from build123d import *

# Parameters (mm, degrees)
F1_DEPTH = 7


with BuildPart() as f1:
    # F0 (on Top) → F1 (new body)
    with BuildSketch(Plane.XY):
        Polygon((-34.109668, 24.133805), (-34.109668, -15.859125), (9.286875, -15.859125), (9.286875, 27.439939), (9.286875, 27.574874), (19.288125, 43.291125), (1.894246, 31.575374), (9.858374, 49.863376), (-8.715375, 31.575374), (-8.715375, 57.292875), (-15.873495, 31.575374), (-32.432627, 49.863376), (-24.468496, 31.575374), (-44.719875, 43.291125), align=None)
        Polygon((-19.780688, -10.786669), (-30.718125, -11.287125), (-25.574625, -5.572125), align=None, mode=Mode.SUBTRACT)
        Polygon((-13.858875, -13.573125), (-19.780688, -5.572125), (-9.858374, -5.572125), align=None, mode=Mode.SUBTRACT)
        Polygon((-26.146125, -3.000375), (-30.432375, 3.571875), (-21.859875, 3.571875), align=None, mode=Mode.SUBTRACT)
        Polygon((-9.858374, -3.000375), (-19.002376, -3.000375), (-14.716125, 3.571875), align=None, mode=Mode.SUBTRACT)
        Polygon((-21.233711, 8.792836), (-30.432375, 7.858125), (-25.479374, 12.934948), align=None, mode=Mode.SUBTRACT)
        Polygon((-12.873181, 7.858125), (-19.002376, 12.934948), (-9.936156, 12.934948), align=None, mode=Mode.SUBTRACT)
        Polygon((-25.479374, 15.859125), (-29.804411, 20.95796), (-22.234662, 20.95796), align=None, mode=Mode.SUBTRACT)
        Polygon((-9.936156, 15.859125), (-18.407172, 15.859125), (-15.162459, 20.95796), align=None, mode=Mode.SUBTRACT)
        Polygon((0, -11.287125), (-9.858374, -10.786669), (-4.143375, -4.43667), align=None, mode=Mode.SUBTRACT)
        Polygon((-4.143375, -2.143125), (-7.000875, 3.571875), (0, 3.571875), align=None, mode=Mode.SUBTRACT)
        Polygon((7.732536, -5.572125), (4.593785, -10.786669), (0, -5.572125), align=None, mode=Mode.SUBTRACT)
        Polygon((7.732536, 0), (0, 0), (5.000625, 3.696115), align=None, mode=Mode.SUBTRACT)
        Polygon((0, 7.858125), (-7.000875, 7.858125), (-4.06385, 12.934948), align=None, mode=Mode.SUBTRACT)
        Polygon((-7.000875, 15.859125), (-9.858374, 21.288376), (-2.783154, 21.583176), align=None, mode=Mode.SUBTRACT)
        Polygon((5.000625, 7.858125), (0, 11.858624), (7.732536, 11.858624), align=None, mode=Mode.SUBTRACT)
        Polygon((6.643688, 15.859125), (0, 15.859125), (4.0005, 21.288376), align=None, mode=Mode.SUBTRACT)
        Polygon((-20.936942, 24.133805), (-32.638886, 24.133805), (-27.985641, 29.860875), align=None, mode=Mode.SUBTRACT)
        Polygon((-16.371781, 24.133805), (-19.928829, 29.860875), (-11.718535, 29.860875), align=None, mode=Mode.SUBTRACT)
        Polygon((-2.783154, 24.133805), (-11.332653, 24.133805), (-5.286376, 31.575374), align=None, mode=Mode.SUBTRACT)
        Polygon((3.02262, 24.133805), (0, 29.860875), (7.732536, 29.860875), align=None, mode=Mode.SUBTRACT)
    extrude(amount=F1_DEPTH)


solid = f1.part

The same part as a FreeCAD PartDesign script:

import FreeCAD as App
import Part
import Sketcher
from FreeCAD import Vector
Q = App.Units.Quantity

doc = App.newDocument("Part")
body = doc.addObject("PartDesign::Body", "Body")

# Sketch on XY plane
sketch1 = body.newObject("Sketcher::SketchObject", "Sketch")
sketch1.AttachmentSupport = (doc.getObject("XY_Plane"), [""])
sketch1.MapMode = "FlatFace"
sketch1.addGeometry([
    Part.LineSegment(Vector(-34.109668, 24.133805, 0), Vector(-34.109668, -15.859125, 0)),  # 0
    Part.LineSegment(Vector(-34.109668, -15.859125, 0), Vector(9.286875, -15.859125, 0)),  # 1
    Part.LineSegment(Vector(9.286875, -15.859125, 0), Vector(9.286875, 27.574874, 0)),  # 2
    Part.LineSegment(Vector(9.286875, 27.574874, 0), Vector(19.288125, 43.291125, 0)),  # 3
    Part.LineSegment(Vector(19.288125, 43.291125, 0), Vector(1.894246, 31.575374, 0)),  # 4
    Part.LineSegment(Vector(1.894246, 31.575374, 0), Vector(9.858374, 49.863376, 0)),  # 5
    Part.LineSegment(Vector(9.858374, 49.863376, 0), Vector(-8.715375, 31.575374, 0)),  # 6
    Part.LineSegment(Vector(-8.715375, 31.575374, 0), Vector(-8.715375, 57.292875, 0)),  # 7
    Part.LineSegment(Vector(-8.715375, 57.292875, 0), Vector(-15.873495, 31.575374, 0)),  # 8
    Part.LineSegment(Vector(-15.873495, 31.575374, 0), Vector(-32.432627, 49.863376, 0)),  # 9
    Part.LineSegment(Vector(-32.432627, 49.863376, 0), Vector(-24.468496, 31.575374, 0)),  # 10
    Part.LineSegment(Vector(-24.468496, 31.575374, 0), Vector(-44.719875, 43.291125, 0)),  # 11
    Part.LineSegment(Vector(-44.719875, 43.291125, 0), Vector(-34.109668, 24.133805, 0)),  # 12
    Part.LineSegment(Vector(-25.574625, -5.572125, 0), Vector(-19.780688, -10.786669, 0)),  # 13
    Part.LineSegment(Vector(-19.780688, -10.786669, 0), Vector(-30.718125, -11.287125, 0)),  # 14
    Part.LineSegment(Vector(-30.718125, -11.287125, 0), Vector(-25.574625, -5.572125, 0)),  # 15
    Part.LineSegment(Vector(-9.858374, -5.572125, 0), Vector(-13.858875, -13.573125, 0)),  # 16
    Part.LineSegment(Vector(-13.858875, -13.573125, 0), Vector(-19.780688, -5.572125, 0)),  # 17
    Part.LineSegment(Vector(-19.780688, -5.572125, 0), Vector(-9.858374, -5.572125, 0)),  # 18
    Part.LineSegment(Vector(-21.859875, 3.571875, 0), Vector(-26.146125, -3.000375, 0)),  # 19
    Part.LineSegment(Vector(-26.146125, -3.000375, 0), Vector(-30.432375, 3.571875, 0)),  # 20
    Part.LineSegment(Vector(-30.432375, 3.571875, 0), Vector(-21.859875, 3.571875, 0)),  # 21
    Part.LineSegment(Vector(-14.716125, 3.571875, 0), Vector(-9.858374, -3.000375, 0)),  # 22
    Part.LineSegment(Vector(-9.858374, -3.000375, 0), Vector(-19.002376, -3.000375, 0)),  # 23
    Part.LineSegment(Vector(-19.002376, -3.000375, 0), Vector(-14.716125, 3.571875, 0)),  # 24
    Part.LineSegment(Vector(-4.143375, -4.43667, 0), Vector(0, -11.287125, 0)),  # 25
    Part.LineSegment(Vector(0, -11.287125, 0), Vector(-9.858374, -10.786669, 0)),  # 26
    Part.LineSegment(Vector(-9.858374, -10.786669, 0), Vector(-4.143375, -4.43667, 0)),  # 27
    Part.LineSegment(Vector(0, -5.572125, 0), Vector(7.732536, -5.572125, 0)),  # 28
    Part.LineSegment(Vector(7.732536, -5.572125, 0), Vector(4.593785, -10.786669, 0)),  # 29
    Part.LineSegment(Vector(4.593785, -10.786669, 0), Vector(0, -5.572125, 0)),  # 30
    Part.LineSegment(Vector(0, 3.571875, 0), Vector(-4.143375, -2.143125, 0)),  # 31
    Part.LineSegment(Vector(-4.143375, -2.143125, 0), Vector(-7.000875, 3.571875, 0)),  # 32
    Part.LineSegment(Vector(-7.000875, 3.571875, 0), Vector(0, 3.571875, 0)),  # 33
    Part.LineSegment(Vector(5.000625, 3.696115, 0), Vector(7.732536, 0, 0)),  # 34
    Part.LineSegment(Vector(7.732536, 0, 0), Vector(0, 0, 0)),  # 35
    Part.LineSegment(Vector(0, 0, 0), Vector(5.000625, 3.696115, 0)),  # 36
    Part.LineSegment(Vector(-25.479374, 12.934948, 0), Vector(-21.233711, 8.792836, 0)),  # 37
    Part.LineSegment(Vector(-21.233711, 8.792836, 0), Vector(-30.432375, 7.858125, 0)),  # 38
    Part.LineSegment(Vector(-30.432375, 7.858125, 0), Vector(-25.479374, 12.934948, 0)),  # 39
    Part.LineSegment(Vector(-22.234662, 20.95796, 0), Vector(-25.479374, 15.859125, 0)),  # 40
    Part.LineSegment(Vector(-25.479374, 15.859125, 0), Vector(-29.804411, 20.95796, 0)),  # 41
    Part.LineSegment(Vector(-29.804411, 20.95796, 0), Vector(-22.234662, 20.95796, 0)),  # 42
    Part.LineSegment(Vector(-9.936156, 12.934948, 0), Vector(-12.873181, 7.858125, 0)),  # 43
    Part.LineSegment(Vector(-12.873181, 7.858125, 0), Vector(-19.002376, 12.934948, 0)),  # 44
    Part.LineSegment(Vector(-19.002376, 12.934948, 0), Vector(-9.936156, 12.934948, 0)),  # 45
    Part.LineSegment(Vector(-15.162459, 20.95796, 0), Vector(-9.936156, 15.859125, 0)),  # 46
    Part.LineSegment(Vector(-9.936156, 15.859125, 0), Vector(-18.407172, 15.859125, 0)),  # 47
    Part.LineSegment(Vector(-18.407172, 15.859125, 0), Vector(-15.162459, 20.95796, 0)),  # 48
    Part.LineSegment(Vector(-27.985641, 29.860875, 0), Vector(-20.936942, 24.133805, 0)),  # 49
    Part.LineSegment(Vector(-20.936942, 24.133805, 0), Vector(-32.638886, 24.133805, 0)),  # 50
    Part.LineSegment(Vector(-32.638886, 24.133805, 0), Vector(-27.985641, 29.860875, 0)),  # 51
    Part.LineSegment(Vector(-11.718535, 29.860875, 0), Vector(-16.371781, 24.133805, 0)),  # 52
    Part.LineSegment(Vector(-16.371781, 24.133805, 0), Vector(-19.928829, 29.860875, 0)),  # 53
    Part.LineSegment(Vector(-19.928829, 29.860875, 0), Vector(-11.718535, 29.860875, 0)),  # 54
    Part.LineSegment(Vector(-4.06385, 12.934948, 0), Vector(0, 7.858125, 0)),  # 55
    Part.LineSegment(Vector(0, 7.858125, 0), Vector(-7.000875, 7.858125, 0)),  # 56
    Part.LineSegment(Vector(-7.000875, 7.858125, 0), Vector(-4.06385, 12.934948, 0)),  # 57
    Part.LineSegment(Vector(-2.783154, 21.583176, 0), Vector(-7.000875, 15.859125, 0)),  # 58
    Part.LineSegment(Vector(-7.000875, 15.859125, 0), Vector(-9.858374, 21.288376, 0)),  # 59
    Part.LineSegment(Vector(-9.858374, 21.288376, 0), Vector(-2.783154, 21.583176, 0)),  # 60
    Part.LineSegment(Vector(7.732536, 11.858624, 0), Vector(5.000625, 7.858125, 0)),  # 61
    Part.LineSegment(Vector(5.000625, 7.858125, 0), Vector(0, 11.858624, 0)),  # 62
    Part.LineSegment(Vector(0, 11.858624, 0), Vector(7.732536, 11.858624, 0)),  # 63
    Part.LineSegment(Vector(4.0005, 21.288376, 0), Vector(6.643688, 15.859125, 0)),  # 64
    Part.LineSegment(Vector(6.643688, 15.859125, 0), Vector(0, 15.859125, 0)),  # 65
    Part.LineSegment(Vector(0, 15.859125, 0), Vector(4.0005, 21.288376, 0)),  # 66
    Part.LineSegment(Vector(-5.286376, 31.575374, 0), Vector(-2.783154, 24.133805, 0)),  # 67
    Part.LineSegment(Vector(-2.783154, 24.133805, 0), Vector(-11.332653, 24.133805, 0)),  # 68
    Part.LineSegment(Vector(-11.332653, 24.133805, 0), Vector(-5.286376, 31.575374, 0)),  # 69
    Part.LineSegment(Vector(7.732536, 29.860875, 0), Vector(3.02262, 24.133805, 0)),  # 70
    Part.LineSegment(Vector(3.02262, 24.133805, 0), Vector(0, 29.860875, 0)),  # 71
    Part.LineSegment(Vector(0, 29.860875, 0), Vector(7.732536, 29.860875, 0)),  # 72
], False)
sketch1.addConstraint([
    Sketcher.Constraint("Coincident", 0, 2, 1, 1),
    Sketcher.Constraint("Coincident", 1, 2, 2, 1),
    Sketcher.Constraint("Coincident", 2, 2, 3, 1),
    Sketcher.Constraint("Coincident", 3, 2, 4, 1),
    Sketcher.Constraint("Coincident", 4, 2, 5, 1),
    Sketcher.Constraint("Coincident", 5, 2, 6, 1),
    Sketcher.Constraint("Coincident", 6, 2, 7, 1),
    Sketcher.Constraint("Coincident", 7, 2, 8, 1),
    Sketcher.Constraint("Coincident", 8, 2, 9, 1),
    Sketcher.Constraint("Coincident", 9, 2, 10, 1),
    Sketcher.Constraint("Coincident", 10, 2, 11, 1),
    Sketcher.Constraint("Coincident", 11, 2, 12, 1),
    Sketcher.Constraint("Coincident", 12, 2, 0, 1),
    Sketcher.Constraint("Coincident", 13, 2, 14, 1),
    Sketcher.Constraint("Coincident", 14, 2, 15, 1),
    Sketcher.Constraint("Coincident", 15, 2, 13, 1),
    Sketcher.Constraint("Coincident", 16, 2, 17, 1),
    Sketcher.Constraint("Coincident", 17, 2, 18, 1),
    Sketcher.Constraint("Coincident", 18, 2, 16, 1),
    Sketcher.Constraint("Coincident", 19, 2, 20, 1),
    Sketcher.Constraint("Coincident", 20, 2, 21, 1),
    Sketcher.Constraint("Coincident", 21, 2, 19, 1),
    Sketcher.Constraint("Coincident", 22, 2, 23, 1),
    Sketcher.Constraint("Coincident", 23, 2, 24, 1),
    Sketcher.Constraint("Coincident", 24, 2, 22, 1),
    Sketcher.Constraint("Coincident", 25, 2, 26, 1),
    Sketcher.Constraint("Coincident", 26, 2, 27, 1),
    Sketcher.Constraint("Coincident", 27, 2, 25, 1),
    Sketcher.Constraint("Coincident", 28, 2, 29, 1),
    Sketcher.Constraint("Coincident", 29, 2, 30, 1),
    Sketcher.Constraint("Coincident", 30, 2, 28, 1),
    Sketcher.Constraint("Coincident", 31, 2, 32, 1),
    Sketcher.Constraint("Coincident", 32, 2, 33, 1),
    Sketcher.Constraint("Coincident", 33, 2, 31, 1),
    Sketcher.Constraint("Coincident", 34, 2, 35, 1),
    Sketcher.Constraint("Coincident", 35, 2, 36, 1),
    Sketcher.Constraint("Coincident", 36, 2, 34, 1),
    Sketcher.Constraint("Coincident", 37, 2, 38, 1),
    Sketcher.Constraint("Coincident", 38, 2, 39, 1),
    Sketcher.Constraint("Coincident", 39, 2, 37, 1),
    Sketcher.Constraint("Coincident", 40, 2, 41, 1),
    Sketcher.Constraint("Coincident", 41, 2, 42, 1),
    Sketcher.Constraint("Coincident", 42, 2, 40, 1),
    Sketcher.Constraint("Coincident", 43, 2, 44, 1),
    Sketcher.Constraint("Coincident", 44, 2, 45, 1),
    Sketcher.Constraint("Coincident", 45, 2, 43, 1),
    Sketcher.Constraint("Coincident", 46, 2, 47, 1),
    Sketcher.Constraint("Coincident", 47, 2, 48, 1),
    Sketcher.Constraint("Coincident", 48, 2, 46, 1),
    Sketcher.Constraint("Coincident", 49, 2, 50, 1),
    Sketcher.Constraint("Coincident", 50, 2, 51, 1),
    Sketcher.Constraint("Coincident", 51, 2, 49, 1),
    Sketcher.Constraint("Coincident", 52, 2, 53, 1),
    Sketcher.Constraint("Coincident", 53, 2, 54, 1),
    Sketcher.Constraint("Coincident", 54, 2, 52, 1),
    Sketcher.Constraint("Coincident", 55, 2, 56, 1),
    Sketcher.Constraint("Coincident", 56, 2, 57, 1),
    Sketcher.Constraint("Coincident", 57, 2, 55, 1),
    Sketcher.Constraint("Coincident", 58, 2, 59, 1),
    Sketcher.Constraint("Coincident", 59, 2, 60, 1),
    Sketcher.Constraint("Coincident", 60, 2, 58, 1),
    Sketcher.Constraint("Coincident", 61, 2, 62, 1),
    Sketcher.Constraint("Coincident", 62, 2, 63, 1),
    Sketcher.Constraint("Coincident", 63, 2, 61, 1),
    Sketcher.Constraint("Coincident", 64, 2, 65, 1),
    Sketcher.Constraint("Coincident", 65, 2, 66, 1),
    Sketcher.Constraint("Coincident", 66, 2, 64, 1),
    Sketcher.Constraint("Coincident", 67, 2, 68, 1),
    Sketcher.Constraint("Coincident", 68, 2, 69, 1),
    Sketcher.Constraint("Coincident", 69, 2, 67, 1),
    Sketcher.Constraint("Coincident", 70, 2, 71, 1),
    Sketcher.Constraint("Coincident", 71, 2, 72, 1),
    Sketcher.Constraint("Coincident", 72, 2, 70, 1),
    Sketcher.Constraint("Vertical", 0),
    Sketcher.Constraint("Horizontal", 1),
    Sketcher.Constraint("Vertical", 2),
    Sketcher.Constraint("Vertical", 7),
    Sketcher.Constraint("Horizontal", 18),
    Sketcher.Constraint("Horizontal", 21),
    Sketcher.Constraint("Horizontal", 23),
    Sketcher.Constraint("Horizontal", 28),
    Sketcher.Constraint("Horizontal", 33),
    Sketcher.Constraint("Horizontal", 35),
    Sketcher.Constraint("Horizontal", 42),
    Sketcher.Constraint("Horizontal", 45),
    Sketcher.Constraint("Horizontal", 47),
    Sketcher.Constraint("Horizontal", 50),
    Sketcher.Constraint("Horizontal", 54),
    Sketcher.Constraint("Horizontal", 56),
    Sketcher.Constraint("Horizontal", 63),
    Sketcher.Constraint("Horizontal", 65),
    Sketcher.Constraint("Horizontal", 68),
    Sketcher.Constraint("Horizontal", 72),
    Sketcher.Constraint("Coincident", 35, 2, -1, 1),
    Sketcher.Constraint("PointOnObject", 25, 2, -2),
    Sketcher.Constraint("PointOnObject", 30, 2, -2),
    Sketcher.Constraint("PointOnObject", 33, 2, -2),
    Sketcher.Constraint("PointOnObject", 55, 2, -2),
    Sketcher.Constraint("PointOnObject", 62, 2, -2),
    Sketcher.Constraint("PointOnObject", 65, 2, -2),
    Sketcher.Constraint("PointOnObject", 71, 2, -2),
    Sketcher.Constraint("DistanceX", 23, 2, 23, 1, Q("0.3600001 in")),
    Sketcher.Constraint("DistanceY", 2, 1, 2, 2, Q("1.71 in")),
    Sketcher.Constraint("DistanceX", 21, 1, 21, 2, Q("0.3375 in")),
    Sketcher.Constraint("DistanceY", 7, 1, 7, 2, Q("1.0125 in")),
    Sketcher.Constraint("DistanceY", -1, 1, 20, 2, Q("0.140625 in")),
    Sketcher.Constraint("DistanceY", -1, 1, 24, 2, Q("0.140625 in")),
    Sketcher.Constraint("DistanceY", -1, 1, 32, 2, Q("0.140625 in")),
    Sketcher.Constraint("DistanceX", 68, 2, 68, 1, 8.549499),
    Sketcher.Constraint("DistanceX", -1, 1, 66, 2, Q("0.1575 in")),
    Sketcher.Constraint("Distance", 12, 21.899301),
    Sketcher.Constraint("Distance", 55, 6.503),
    Sketcher.Constraint("DistanceX", 42, 1, 42, 2, 7.569749),
    Sketcher.Constraint("DistanceX", 45, 1, 45, 2, 9.06622),
    Sketcher.Constraint("DistanceY", 0, 2, 0, 1, 39.99293),
    Sketcher.Constraint("Distance", 3, 18.628622),
    Sketcher.Constraint("Distance", 4, 20.971549),
    Sketcher.Constraint("Distance", 5, 19.946888),
    Sketcher.Constraint("Distance", 9, 24.670952),
    Sketcher.Constraint("Distance", 10, 19.946889),
    Sketcher.Constraint("Distance", 14, 10.948881),
    Sketcher.Constraint("Distance", 16, 8.94539),
    Sketcher.Constraint("Distance", 17, 9.954088),
    Sketcher.Constraint("Distance", 22, 8.17265),
    Sketcher.Constraint("Distance", 26, 9.871069),
    Sketcher.Constraint("Distance", 27, 8.54305),
    Sketcher.Constraint("Distance", 31, 7.05895),
    Sketcher.Constraint("Distance", 34, 4.596151),
    Sketcher.Constraint("Distance", 36, 6.218321),
    Sketcher.Constraint("Distance", 38, 9.246032),
    Sketcher.Constraint("Distance", 41, 6.68611),
    Sketcher.Constraint("Distance", 46, 7.301531),
    Sketcher.Constraint("Distance", 51, 7.379161),
    Sketcher.Constraint("Distance", 52, 7.379162),
    Sketcher.Constraint("Distance", 58, 7.110129),
    Sketcher.Constraint("Distance", 60, 7.081359),
    Sketcher.Constraint("Distance", 61, 4.844309),
    Sketcher.Constraint("Distance", 67, 7.85131),
    Sketcher.Constraint("DistanceX", 1, 1, 1, 2, 43.396543),
    Sketcher.Constraint("DistanceX", 18, 1, 18, 2, 9.922314),
    Sketcher.Constraint("DistanceX", 28, 1, 28, 2, 7.732536),
    Sketcher.Constraint("DistanceX", 33, 1, 33, 2, 7.000875),
    Sketcher.Constraint("DistanceX", 35, 2, 35, 1, 7.732536),
    Sketcher.Constraint("DistanceX", 47, 2, 47, 1, 8.471016),
    Sketcher.Constraint("DistanceX", 50, 2, 50, 1, 11.701944),
    Sketcher.Constraint("DistanceX", 54, 1, 54, 2, 8.210294),
    Sketcher.Constraint("DistanceX", 56, 2, 56, 1, 7.000875),
    Sketcher.Constraint("DistanceX", 63, 1, 63, 2, 7.732536),
    Sketcher.Constraint("DistanceX", 65, 2, 65, 1, 6.643688),
    Sketcher.Constraint("DistanceX", 72, 1, 72, 2, 7.732536),
    Sketcher.Constraint("DistanceX", 13, 2, -1, 1, 19.780688),
    Sketcher.Constraint("DistanceY", 13, 2, -1, 1, 10.786669),
    Sketcher.Constraint("DistanceX", 17, 2, -1, 1, 19.780688),
    Sketcher.Constraint("DistanceY", 26, 2, -1, 1, 10.786669),
    Sketcher.Constraint("DistanceY", 27, 2, -1, 1, 4.43667),
    Sketcher.Constraint("DistanceY", 29, 2, -1, 1, 10.786669),
    Sketcher.Constraint("DistanceX", 37, 2, -1, 1, 21.233711),
    Sketcher.Constraint("DistanceX", 41, 2, -1, 1, 29.804411),
    Sketcher.Constraint("DistanceY", -1, 1, 41, 2, 20.95796),
    Sketcher.Constraint("DistanceX", 43, 2, -1, 1, 12.873181),
    Sketcher.Constraint("DistanceX", 47, 2, -1, 1, 18.407172),
    Sketcher.Constraint("DistanceX", 48, 2, -1, 1, 15.162459),
    Sketcher.Constraint("DistanceY", -1, 1, 48, 2, 20.95796),
    Sketcher.Constraint("DistanceX", 49, 2, -1, 1, 20.936942),
    Sketcher.Constraint("DistanceX", 51, 2, -1, 1, 27.985641),
    Sketcher.Constraint("DistanceX", 52, 2, -1, 1, 16.371781),
    Sketcher.Constraint("DistanceX", 53, 2, -1, 1, 19.928829),
    Sketcher.Constraint("DistanceX", 57, 2, -1, 1, 4.06385),
    Sketcher.Constraint("DistanceX", -1, 1, 70, 2, 3.02262),
    Sketcher.Constraint("Distance", 6, 26.065977),
    Sketcher.Constraint("Distance", 8, 26.695103),
    Sketcher.Constraint("Distance", 11, 23.396093),
    Sketcher.Constraint("Distance", 13, 7.794945),
    Sketcher.Constraint("Distance", 15, 7.688746),
    Sketcher.Constraint("Distance", 19, 7.846427),
    Sketcher.Constraint("Distance", 20, 7.846427),
    Sketcher.Constraint("Distance", 24, 7.846427),
    Sketcher.Constraint("Distance", 25, 8.006016),
    Sketcher.Constraint("Distance", 29, 6.086315),
    Sketcher.Constraint("Distance", 30, 6.949412),
    Sketcher.Constraint("Distance", 32, 6.389564),
    Sketcher.Constraint("Distance", 37, 5.931505),
    Sketcher.Constraint("Distance", 39, 7.092697),
    Sketcher.Constraint("Distance", 40, 6.043697),
    Sketcher.Constraint("Distance", 43, 5.865172),
    Sketcher.Constraint("Distance", 44, 7.958716),
    Sketcher.Constraint("Distance", 59, 6.135313),
    Sketcher.Constraint("Distance", 62, 6.403924),
    Sketcher.Constraint("Distance", 64, 6.038477),
    Sketcher.Constraint("Distance", 69, 9.588244),
    Sketcher.Constraint("Distance", 70, 7.415028),
    Sketcher.Constraint("DistanceX", 0, 2, -1, 1, 34.109668),
    Sketcher.Constraint("DistanceY", 0, 2, -1, 1, 15.859125),
    Sketcher.Constraint("DistanceX", -1, 1, 3, 2, 19.288125),
    Sketcher.Constraint("DistanceX", -1, 1, 4, 2, 1.894246),
    Sketcher.Constraint("DistanceX", -1, 1, 5, 2, 9.858374),
    Sketcher.Constraint("DistanceX", 6, 2, -1, 1, 8.715375),
    Sketcher.Constraint("DistanceX", 8, 2, -1, 1, 15.873495),
    Sketcher.Constraint("DistanceX", 9, 2, -1, 1, 32.432627),
    Sketcher.Constraint("DistanceX", 10, 2, -1, 1, 24.468496),
    Sketcher.Constraint("DistanceX", 14, 2, -1, 1, 30.718125),
    Sketcher.Constraint("DistanceY", 16, 2, -1, 1, 13.573125),
    Sketcher.Constraint("DistanceX", 19, 2, -1, 1, 26.146125),
    Sketcher.Constraint("DistanceX", 22, 2, -1, 1, 9.858374),
    Sketcher.Constraint("DistanceY", -1, 1, 37, 2, 8.792836),
    Sketcher.Constraint("DistanceX", 38, 2, -1, 1, 30.432375),
    Sketcher.Constraint("DistanceY", -1, 1, 43, 2, 7.858125),
    Sketcher.Constraint("DistanceY", -1, 1, 49, 2, 24.133805),
    Sketcher.Constraint("DistanceY", -1, 1, 52, 2, 24.133805),
    Sketcher.Constraint("DistanceY", -1, 1, 55, 2, 7.858125),
    Sketcher.Constraint("DistanceX", 58, 2, -1, 1, 7.000875),
    Sketcher.Constraint("DistanceY", -1, 1, 58, 2, 15.859125),
    Sketcher.Constraint("DistanceX", 59, 2, -1, 1, 9.858374),
    Sketcher.Constraint("DistanceY", -1, 1, 61, 2, 7.858125),
    Sketcher.Constraint("DistanceY", -1, 1, 64, 2, 15.859125),
    Sketcher.Constraint("DistanceX", 67, 2, -1, 1, 2.783154),
    Sketcher.Constraint("DistanceY", -1, 1, 67, 2, 24.133805),
    Sketcher.Constraint("DistanceY", -1, 1, 70, 2, 24.133805),
])
pad1 = body.newObject("PartDesign::Pad", "Pad")
pad1.Profile = sketch1
pad1.Length = 7

doc.recompute()
